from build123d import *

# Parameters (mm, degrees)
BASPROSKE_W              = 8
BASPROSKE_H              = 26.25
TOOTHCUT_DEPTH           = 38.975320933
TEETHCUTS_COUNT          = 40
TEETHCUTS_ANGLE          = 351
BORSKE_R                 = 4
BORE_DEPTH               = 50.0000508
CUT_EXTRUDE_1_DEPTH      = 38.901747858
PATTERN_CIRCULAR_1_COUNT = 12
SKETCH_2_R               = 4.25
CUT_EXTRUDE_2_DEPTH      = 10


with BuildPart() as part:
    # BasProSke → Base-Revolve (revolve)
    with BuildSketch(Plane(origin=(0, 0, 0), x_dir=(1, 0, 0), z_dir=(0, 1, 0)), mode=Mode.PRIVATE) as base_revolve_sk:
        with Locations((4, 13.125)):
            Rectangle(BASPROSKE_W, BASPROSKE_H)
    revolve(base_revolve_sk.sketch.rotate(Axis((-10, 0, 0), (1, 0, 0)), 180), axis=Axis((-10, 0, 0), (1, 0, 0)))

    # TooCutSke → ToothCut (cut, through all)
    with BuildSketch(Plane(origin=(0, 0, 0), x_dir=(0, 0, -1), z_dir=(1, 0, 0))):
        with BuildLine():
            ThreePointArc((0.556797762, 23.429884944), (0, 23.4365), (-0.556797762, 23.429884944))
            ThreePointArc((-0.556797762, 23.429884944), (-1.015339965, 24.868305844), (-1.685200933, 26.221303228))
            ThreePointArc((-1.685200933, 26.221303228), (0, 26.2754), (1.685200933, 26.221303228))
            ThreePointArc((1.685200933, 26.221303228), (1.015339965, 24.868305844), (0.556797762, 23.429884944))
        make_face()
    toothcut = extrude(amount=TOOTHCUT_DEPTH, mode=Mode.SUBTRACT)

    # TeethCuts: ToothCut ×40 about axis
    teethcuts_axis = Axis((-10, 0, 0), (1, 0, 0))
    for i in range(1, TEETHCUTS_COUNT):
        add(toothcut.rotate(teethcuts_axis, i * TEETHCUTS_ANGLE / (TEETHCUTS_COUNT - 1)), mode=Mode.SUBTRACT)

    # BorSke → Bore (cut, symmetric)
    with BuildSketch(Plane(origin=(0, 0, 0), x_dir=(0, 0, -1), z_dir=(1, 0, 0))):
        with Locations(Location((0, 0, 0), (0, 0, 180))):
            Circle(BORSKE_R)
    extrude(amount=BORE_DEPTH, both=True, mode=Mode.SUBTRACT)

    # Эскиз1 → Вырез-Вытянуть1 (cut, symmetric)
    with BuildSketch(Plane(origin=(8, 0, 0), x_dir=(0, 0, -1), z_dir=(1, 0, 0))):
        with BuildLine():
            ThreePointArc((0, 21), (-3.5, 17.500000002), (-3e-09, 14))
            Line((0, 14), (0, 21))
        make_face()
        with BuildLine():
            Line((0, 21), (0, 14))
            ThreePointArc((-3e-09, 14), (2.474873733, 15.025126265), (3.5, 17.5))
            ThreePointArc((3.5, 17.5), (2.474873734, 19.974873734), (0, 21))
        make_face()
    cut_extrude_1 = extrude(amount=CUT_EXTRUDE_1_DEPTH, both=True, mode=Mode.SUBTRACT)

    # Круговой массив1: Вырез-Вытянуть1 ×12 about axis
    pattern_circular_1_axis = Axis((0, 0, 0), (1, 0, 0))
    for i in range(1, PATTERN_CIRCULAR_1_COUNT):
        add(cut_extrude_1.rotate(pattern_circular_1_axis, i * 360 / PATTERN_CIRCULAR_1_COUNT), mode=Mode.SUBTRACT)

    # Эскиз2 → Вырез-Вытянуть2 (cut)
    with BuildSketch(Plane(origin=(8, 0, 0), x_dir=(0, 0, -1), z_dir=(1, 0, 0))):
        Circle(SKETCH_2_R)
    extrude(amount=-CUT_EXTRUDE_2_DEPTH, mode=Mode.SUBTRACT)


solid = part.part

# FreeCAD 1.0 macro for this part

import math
import FreeCAD as App
import Part
import Sketcher


def add_polygon(sketch, points):
    """Adds a closed chain of lines whose ends are joined by coincident constraints."""
    first, n = sketch.GeometryCount, len(points)
    for a, b in zip(points, points[1:] + points[:1]):
        sketch.addGeometry(Part.LineSegment(App.Vector(*a, 0), App.Vector(*b, 0)), False)
    for i in range(n):
        sketch.addConstraint(Sketcher.Constraint("Coincident", first + i, 2, first + (i + 1) % n, 1))

doc = App.newDocument("Part")
body = doc.addObject("PartDesign::Body", "Body")

sketch1 = doc.addObject("Sketcher::SketchObject", "Sketch")
body.addObject(sketch1)
sketch1.AttachmentSupport = (doc.XZ_Plane, [""])
sketch1.MapMode = "FlatFace"
add_polygon(sketch1, [(0, -26), (0, 0), (8, 0), (8, -26)])
sketch1.addConstraint([
    Sketcher.Constraint("Vertical", 0),
    Sketcher.Constraint("Horizontal", 1),
    Sketcher.Constraint("Vertical", 2),
    Sketcher.Constraint("Horizontal", 3),
    Sketcher.Constraint("Coincident", 0, 2, -1, 1),
    Sketcher.Constraint("DistanceX", 1, 1, 1, 2, 8.0),
    Sketcher.Constraint("DistanceY", 0, 1, 0, 2, 26.25),
])
revolution = doc.addObject("PartDesign::Revolution", "Revolution")
body.addObject(revolution)
revolution.Profile = sketch1
revolution.ReferenceAxis = (sketch1, ["H_Axis"])
revolution.Angle = 360

sketch2 = doc.addObject("Sketcher::SketchObject", "Sketch001")
body.addObject(sketch2)
sketch2.AttachmentSupport = (doc.YZ_Plane, [""])
sketch2.MapMode = "FlatFace"
sketch2.addGeometry([
    Part.ArcOfCircle(Part.Circle(App.Vector(0, 0, 0), App.Vector(0, 0, 1), 23.4), math.radians(-1.36), math.radians(1.36)),
    Part.ArcOfCircle(Part.Circle(App.Vector(21.1, -10.3, 0), App.Vector(0, 0, 1), 10), math.radians(59.33), math.radians(76.65)),
    Part.ArcOfCircle(Part.Circle(App.Vector(0, 0, 0), App.Vector(0, 0, 1), 26.3), math.radians(-3.68), math.radians(3.68)),
    Part.ArcOfCircle(Part.Circle(App.Vector(21.1, 10.3, 0), App.Vector(0, 0, 1), 10), math.radians(-76.65), math.radians(-59.33)),
], False)
sketch2.addConstraint([
    Sketcher.Constraint("Coincident", 0, 1, 1, 2),
    Sketcher.Constraint("Coincident", 1, 1, 2, 1),
    Sketcher.Constraint("Coincident", 2, 2, 3, 2),
    Sketcher.Constraint("Coincident", 3, 1, 0, 2),
    Sketcher.Constraint("Coincident", 0, 3, -1, 1),
    Sketcher.Constraint("Coincident", 2, 3, -1, 1),
    Sketcher.Constraint("Equal", 1, 3),
    Sketcher.Constraint("Symmetric", 1, 3, 3, 3, -1),
    Sketcher.Constraint("Radius", 1, 10.0),
    Sketcher.Constraint("Radius", 0, 23.436499),
    Sketcher.Constraint("Radius", 2, 26.2754),
    Sketcher.Constraint("DistanceY", 0, 1, 2, 2, 2.241999),
    Sketcher.Constraint("DistanceY", 1, 1, -1, 1, 1.685201),
])
pocket1 = doc.addObject("PartDesign::Pocket", "Pocket")
body.addObject(pocket1)
pocket1.Profile = sketch2
pocket1.Type = "ThroughAll"
pocket1.Reversed = True
doc.recompute()

polarpattern = doc.addObject("PartDesign::PolarPattern", "PolarPattern")
body.addObject(polarpattern)
polarpattern.Originals = [pocket1]
polarpattern.Axis = (doc.X_Axis, [""])
polarpattern.Angle = 360
polarpattern.Occurrences = 40
body.Tip = polarpattern

sketch3 = doc.addObject("Sketcher::SketchObject", "Sketch002")
body.addObject(sketch3)
sketch3.AttachmentSupport = (doc.YZ_Plane, [""])
sketch3.MapMode = "FlatFace"
sketch3.addGeometry(Part.Circle(App.Vector(0, 0, 0), App.Vector(0, 0, 1), 4), False)
sketch3.addConstraint([
    Sketcher.Constraint("Coincident", 0, 3, -1, 1),
    Sketcher.Constraint("Diameter", 0, 8.0),
])
pocket2 = doc.addObject("PartDesign::Pocket", "Pocket001")
body.addObject(pocket2)
pocket2.Profile = sketch3
pocket2.Length = 100.000102
pocket2.Midplane = True

sketch4 = doc.addObject("Sketcher::SketchObject", "Sketch003")
body.addObject(sketch4)
sketch4.AttachmentSupport = (doc.YZ_Plane, [""])
sketch4.MapMode = "FlatFace"
sketch4.AttachmentOffset = App.Placement(App.Vector(0, 0, 8), App.Rotation())
sketch4.addGeometry([
    Part.ArcOfCircle(Part.Circle(App.Vector(17.5, 0, 0), App.Vector(0, 0, 1), 3.5), math.radians(0), math.radians(180)),
    Part.ArcOfCircle(Part.Circle(App.Vector(17.5, 0, 0), App.Vector(0, 0, 1), 3.5), math.radians(180), math.radians(270)),
    Part.ArcOfCircle(Part.Circle(App.Vector(17.5, 0, 0), App.Vector(0, 0, 1), 3.5), math.radians(-90), math.radians(0)),
], False)
sketch4.addConstraint([
    Sketcher.Constraint("Tangent", 0, 2, 1, 1),
    Sketcher.Constraint("Tangent", 1, 2, 2, 1),
    Sketcher.Constraint("Tangent", 2, 2, 0, 1),
    Sketcher.Constraint("PointOnObject", 0, 3, -1),
    Sketcher.Constraint("PointOnObject", 0, 2, -1),
    Sketcher.Constraint("PointOnObject", 2, 2, -1),
    Sketcher.Constraint("Vertical", 2, 3, 1, 2),
    Sketcher.Constraint("Radius", 0, 3.5),
    Sketcher.Constraint("DistanceX", -1, 1, 0, 2, 14.0),
])
pocket3 = doc.addObject("PartDesign::Pocket", "Pocket002")
body.addObject(pocket3)
pocket3.Profile = sketch4
pocket3.Length = 77.803496
pocket3.Midplane = True
doc.recompute()

polarpattern2 = doc.addObject("PartDesign::PolarPattern", "PolarPattern001")
body.addObject(polarpattern2)
polarpattern2.Originals = [pocket3]
polarpattern2.Axis = (doc.X_Axis, [""])
polarpattern2.Angle = 360
polarpattern2.Occurrences = 12
body.Tip = polarpattern2

sketch5 = doc.addObject("Sketcher::SketchObject", "Sketch004")
body.addObject(sketch5)
sketch5.AttachmentSupport = (doc.YZ_Plane, [""])
sketch5.MapMode = "FlatFace"
sketch5.AttachmentOffset = App.Placement(App.Vector(0, 0, 8), App.Rotation())
sketch5.addGeometry(Part.Circle(App.Vector(0, 0, 0), App.Vector(0, 0, 1), 4.2), False)
sketch5.addConstraint([
    Sketcher.Constraint("Coincident", 0, 3, -1, 1),
    Sketcher.Constraint("Diameter", 0, 8.5),
])
pocket4 = doc.addObject("PartDesign::Pocket", "Pocket003")
body.addObject(pocket4)
pocket4.Profile = sketch5
pocket4.Length = 10

doc.recompute()
